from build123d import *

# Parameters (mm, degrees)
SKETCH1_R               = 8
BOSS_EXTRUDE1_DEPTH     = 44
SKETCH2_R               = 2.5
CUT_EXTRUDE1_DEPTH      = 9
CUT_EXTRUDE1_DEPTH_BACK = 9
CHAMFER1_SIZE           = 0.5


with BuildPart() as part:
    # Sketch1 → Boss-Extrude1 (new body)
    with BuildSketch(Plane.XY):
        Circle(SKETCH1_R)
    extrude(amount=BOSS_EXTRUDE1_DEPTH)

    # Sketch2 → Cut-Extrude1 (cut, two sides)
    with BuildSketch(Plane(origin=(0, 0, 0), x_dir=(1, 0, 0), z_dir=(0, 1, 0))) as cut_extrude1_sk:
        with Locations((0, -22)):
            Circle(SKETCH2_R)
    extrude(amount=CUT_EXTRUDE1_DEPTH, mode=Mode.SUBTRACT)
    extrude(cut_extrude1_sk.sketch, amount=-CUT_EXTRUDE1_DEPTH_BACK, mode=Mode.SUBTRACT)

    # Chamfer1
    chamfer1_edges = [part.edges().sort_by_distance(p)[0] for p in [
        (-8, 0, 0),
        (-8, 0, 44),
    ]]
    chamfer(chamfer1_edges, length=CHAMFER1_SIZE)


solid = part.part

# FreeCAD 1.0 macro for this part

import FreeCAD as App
import Part
import Sketcher
from FreeCAD import Vector


def edges_at(feature, points):
    """Names of the edges that pass closest to the given points."""
    edges = feature.Shape.Edges
    near = lambda p: min(range(len(edges)), key=lambda i: edges[i].distToShape(Part.Vertex(*p))[0])
    return sorted({f"Edge{near(p) + 1}" for p in points})

doc = App.newDocument("Part")
body = doc.addObject("PartDesign::Body", "Body")

sketch1 = body.newObject("Sketcher::SketchObject", "Sketch")
sketch1.AttachmentSupport = (doc.getObject("XY_Plane"), [""])
sketch1.MapMode = "FlatFace"
sketch1.addGeometry(Part.Circle(Vector(0, 0, 0), Vector(0, 0, 1), 8), False)
sketch1.addConstraint([
    Sketcher.Constraint("Coincident", 0, 3, -1, 1),
    Sketcher.Constraint("Diameter", 0, 16.0),
])
pad1 = body.newObject("PartDesign::Pad", "Pad")
pad1.Profile = sketch1
pad1.Length = 44

sketch2 = body.newObject("Sketcher::SketchObject", "Sketch001")
sketch2.AttachmentSupport = (doc.getObject("XZ_Plane"), [""])
sketch2.MapMode = "FlatFace"
sketch2.addGeometry(Part.Circle(Vector(0, 22, 0), Vector(0, 0, 1), 2.5), False)
sketch2.addConstraint([
    Sketcher.Constraint("PointOnObject", 0, 3, -2),
    Sketcher.Constraint("Diameter", 0, 5.0),
    Sketcher.Constraint("DistanceY", -1, 1, 0, 3, 22.0),
])
pocket1 = body.newObject("PartDesign::Pocket", "Pocket")
pocket1.Profile = sketch2
pocket1.Type = "ThroughAll"
pocket1.Midplane = True
doc.recompute()

chamfer = body.newObject("PartDesign::Chamfer", "Chamfer")
chamfer.Base = (pocket1, edges_at(pocket1, [(-8, 0, 0), (-8, 0, 44)]))
chamfer.Size = 0.5

doc.recompute()
